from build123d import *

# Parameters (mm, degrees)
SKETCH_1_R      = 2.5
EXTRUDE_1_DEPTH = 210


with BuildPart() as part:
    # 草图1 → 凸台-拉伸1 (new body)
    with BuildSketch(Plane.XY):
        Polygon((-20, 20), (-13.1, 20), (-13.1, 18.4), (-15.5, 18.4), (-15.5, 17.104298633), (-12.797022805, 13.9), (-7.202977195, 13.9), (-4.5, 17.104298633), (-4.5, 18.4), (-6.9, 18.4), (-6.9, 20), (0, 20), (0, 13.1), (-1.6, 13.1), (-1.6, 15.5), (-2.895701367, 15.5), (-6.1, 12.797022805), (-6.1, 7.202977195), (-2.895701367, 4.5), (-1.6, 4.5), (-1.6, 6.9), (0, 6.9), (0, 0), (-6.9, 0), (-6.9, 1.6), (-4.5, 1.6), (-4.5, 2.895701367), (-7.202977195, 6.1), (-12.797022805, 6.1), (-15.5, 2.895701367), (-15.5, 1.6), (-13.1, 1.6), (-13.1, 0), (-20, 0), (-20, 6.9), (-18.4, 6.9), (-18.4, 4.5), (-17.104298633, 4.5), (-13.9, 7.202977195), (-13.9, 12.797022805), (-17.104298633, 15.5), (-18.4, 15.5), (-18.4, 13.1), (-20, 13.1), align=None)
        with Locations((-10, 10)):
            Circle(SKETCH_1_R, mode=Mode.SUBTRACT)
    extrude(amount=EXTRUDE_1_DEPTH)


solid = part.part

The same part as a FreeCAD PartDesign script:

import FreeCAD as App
import Part
import Sketcher
from FreeCAD import Vector
Q = App.Units.Quantity

doc = App.newDocument("Part")
body = doc.addObject("PartDesign::Body", "Body")

# Sketch on XY plane
sketch1 = body.newObject("Sketcher::SketchObject", "Sketch")
sketch1.AttachmentSupport = (doc.getObject("XY_Plane"), [""])
sketch1.MapMode = "FlatFace"
sketch1.addGeometry(Part.LineSegment(Vector(-13.1, 20, 0), Vector(-20, 20, 0)), False)
sketch1.addGeometry(Part.LineSegment(Vector(-20, 20, 0), Vector(-20, 13.1, 0)), False)
sketch1.addGeometry(Part.LineSegment(Vector(-20, 13.1, 0), Vector(-18.4, 13.1, 0)), False)
sketch1.addGeometry(Part.LineSegment(Vector(-18.4, 13.1, 0), Vector(-18.4, 15.5, 0)), False)
sketch1.addGeometry(Part.LineSegment(Vector(-18.4, 15.5, 0), Vector(-17.1, 15.5, 0)), False)
sketch1.addGeometry(Part.LineSegment(Vector(-17.1, 15.5, 0), Vector(-13.9, 12.8, 0)), False)
sketch1.addGeometry(Part.LineSegment(Vector(-13.9, 12.8, 0), Vector(-13.9, 7.2, 0)), False)
sketch1.addGeometry(Part.LineSegment(Vector(-13.9, 7.2, 0), Vector(-17.1, 4.5, 0)), False)
sketch1.addGeometry(Part.LineSegment(Vector(-17.1, 4.5, 0), Vector(-18.4, 4.5, 0)), False)
sketch1.addGeometry(Part.LineSegment(Vector(-18.4, 4.5, 0), Vector(-18.4, 6.9, 0)), False)
sketch1.addGeometry(Part.LineSegment(Vector(-18.4, 6.9, 0), Vector(-20, 6.9, 0)), False)
sketch1.addGeometry(Part.LineSegment(Vector(-20, 6.9, 0), Vector(-20, 0, 0)), False)
sketch1.addGeometry(Part.LineSegment(Vector(-20, 0, 0), Vector(-13.1, 0, 0)), False)
sketch1.addGeometry(Part.LineSegment(Vector(-13.1, 0, 0), Vector(-13.1, 1.6, 0)), False)
sketch1.addGeometry(Part.LineSegment(Vector(-13.1, 1.6, 0), Vector(-15.5, 1.6, 0)), False)
sketch1.addGeometry(Part.LineSegment(Vector(-15.5, 1.6, 0), Vector(-15.5, 2.9, 0)), False)
sketch1.addGeometry(Part.LineSegment(Vector(-15.5, 2.9, 0), Vector(-12.8, 6.1, 0)), False)
sketch1.addGeometry(Part.LineSegment(Vector(-12.8, 6.1, 0), Vector(-7.2, 6.1, 0)), False)
sketch1.addGeometry(Part.LineSegment(Vector(-7.2, 6.1, 0), Vector(-4.5, 2.9, 0)), False)
sketch1.addGeometry(Part.LineSegment(Vector(-4.5, 2.9, 0), Vector(-4.5, 1.6, 0)), False)
sketch1.addGeometry(Part.LineSegment(Vector(-4.5, 1.6, 0), Vector(-6.9, 1.6, 0)), False)
sketch1.addGeometry(Part.LineSegment(Vector(-6.9, 1.6, 0), Vector(-6.9, 0, 0)), False)
sketch1.addGeometry(Part.LineSegment(Vector(-6.9, 0, 0), Vector(0, 0, 0)), False)
sketch1.addGeometry(Part.LineSegment(Vector(0, 0, 0), Vector(0, 6.9, 0)), False)
sketch1.addGeometry(Part.LineSegment(Vector(0, 6.9, 0), Vector(-1.6, 6.9, 0)), False)
sketch1.addGeometry(Part.LineSegment(Vector(-1.6, 6.9, 0), Vector(-1.6, 4.5, 0)), False)
sketch1.addGeometry(Part.LineSegment(Vector(-1.6, 4.5, 0), Vector(-2.9, 4.5, 0)), False)
sketch1.addGeometry(Part.LineSegment(Vector(-2.9, 4.5, 0), Vector(-6.1, 7.2, 0)), False)
sketch1.addGeometry(Part.LineSegment(Vector(-6.1, 7.2, 0), Vector(-6.1, 12.8, 0)), False)
sketch1.addGeometry(Part.LineSegment(Vector(-6.1, 12.8, 0), Vector(-2.9, 15.5, 0)), False)
sketch1.addGeometry(Part.LineSegment(Vector(-2.9, 15.5, 0), Vector(-1.6, 15.5, 0)), False)
sketch1.addGeometry(Part.LineSegment(Vector(-1.6, 15.5, 0), Vector(-1.6, 13.1, 0)), False)
sketch1.addGeometry(Part.LineSegment(Vector(-1.6, 13.1, 0), Vector(0, 13.1, 0)), False)
sketch1.addGeometry(Part.LineSegment(Vector(0, 13.1, 0), Vector(0, 20, 0)), False)
sketch1.addGeometry(Part.LineSegment(Vector(0, 20, 0), Vector(-6.9, 20, 0)), False)
sketch1.addGeometry(Part.LineSegment(Vector(-6.9, 20, 0), Vector(-6.9, 18.4, 0)), False)
sketch1.addGeometry(Part.LineSegment(Vector(-6.9, 18.4, 0), Vector(-4.5, 18.4, 0)), False)
sketch1.addGeometry(Part.LineSegment(Vector(-4.5, 18.4, 0), Vector(-4.5, 17.1, 0)), False)
sketch1.addGeometry(Part.LineSegment(Vector(-4.5, 17.1, 0), Vector(-7.2, 13.9, 0)), False)
sketch1.addGeometry(Part.LineSegment(Vector(-7.2, 13.9, 0), Vector(-12.8, 13.9, 0)), False)
sketch1.addGeometry(Part.LineSegment(Vector(-12.8, 13.9, 0), Vector(-15.5, 17.1, 0)), False)
sketch1.addGeometry(Part.LineSegment(Vector(-15.5, 17.1, 0), Vector(-15.5, 18.4, 0)), False)
sketch1.addGeometry(Part.LineSegment(Vector(-15.5, 18.4, 0), Vector(-13.1, 18.4, 0)), False)
sketch1.addGeometry(Part.LineSegment(Vector(-13.1, 18.4, 0), Vector(-13.1, 20, 0)), False)
sketch1.addGeometry(Part.Circle(Vector(-10, 10, 0), Vector(0, 0, 1), 2.5), False)
sketch1.addConstraint(Sketcher.Constraint("Coincident", 0, 2, 1, 1))
sketch1.addConstraint(Sketcher.Constraint("Coincident", 1, 2, 2, 1))
sketch1.addConstraint(Sketcher.Constraint("Coincident", 2, 2, 3, 1))
sketch1.addConstraint(Sketcher.Constraint("Coincident", 3, 2, 4, 1))
sketch1.addConstraint(Sketcher.Constraint("Coincident", 4, 2, 5, 1))
sketch1.addConstraint(Sketcher.Constraint("Coincident", 5, 2, 6, 1))
sketch1.addConstraint(Sketcher.Constraint("Coincident", 6, 2, 7, 1))
sketch1.addConstraint(Sketcher.Constraint("Coincident", 7, 2, 8, 1))
sketch1.addConstraint(Sketcher.Constraint("Coincident", 8, 2, 9, 1))
sketch1.addConstraint(Sketcher.Constraint("Coincident", 9, 2, 10, 1))
sketch1.addConstraint(Sketcher.Constraint("Coincident", 10, 2, 11, 1))
sketch1.addConstraint(Sketcher.Constraint("Coincident", 11, 2, 12, 1))
sketch1.addConstraint(Sketcher.Constraint("Coincident", 12, 2, 13, 1))
sketch1.addConstraint(Sketcher.Constraint("Coincident", 13, 2, 14, 1))
sketch1.addConstraint(Sketcher.Constraint("Coincident", 14, 2, 15, 1))
sketch1.addConstraint(Sketcher.Constraint("Coincident", 15, 2, 16, 1))
sketch1.addConstraint(Sketcher.Constraint("Coincident", 16, 2, 17, 1))
sketch1.addConstraint(Sketcher.Constraint("Coincident", 17, 2, 18, 1))
sketch1.addConstraint(Sketcher.Constraint("Coincident", 18, 2, 19, 1))
sketch1.addConstraint(Sketcher.Constraint("Coincident", 19, 2, 20, 1))
sketch1.addConstraint(Sketcher.Constraint("Coincident", 20, 2, 21, 1))
sketch1.addConstraint(Sketcher.Constraint("Coincident", 21, 2, 22, 1))
sketch1.addConstraint(Sketcher.Constraint("Coincident", 22, 2, 23, 1))
sketch1.addConstraint(Sketcher.Constraint("Coincident", 23, 2, 24, 1))
sketch1.addConstraint(Sketcher.Constraint("Coincident", 24, 2, 25, 1))
sketch1.addConstraint(Sketcher.Constraint("Coincident", 25, 2, 26, 1))
sketch1.addConstraint(Sketcher.Constraint("Coincident", 26, 2, 27, 1))
sketch1.addConstraint(Sketcher.Constraint("Coincident", 27, 2, 28, 1))
sketch1.addConstraint(Sketcher.Constraint("Coincident", 28, 2, 29, 1))
sketch1.addConstraint(Sketcher.Constraint("Coincident", 29, 2, 30, 1))
sketch1.addConstraint(Sketcher.Constraint("Coincident", 30, 2, 31, 1))
sketch1.addConstraint(Sketcher.Constraint("Coincident", 31, 2, 32, 1))
sketch1.addConstraint(Sketcher.Constraint("Coincident", 32, 2, 33, 1))
sketch1.addConstraint(Sketcher.Constraint("Coincident", 33, 2, 34, 1))
sketch1.addConstraint(Sketcher.Constraint("Coincident", 34, 2, 35, 1))
sketch1.addConstraint(Sketcher.Constraint("Coincident", 35, 2, 36, 1))
sketch1.addConstraint(Sketcher.Constraint("Coincident", 36, 2, 37, 1))
sketch1.addConstraint(Sketcher.Constraint("Coincident", 37, 2, 38, 1))
sketch1.addConstraint(Sketcher.Constraint("Coincident", 38, 2, 39, 1))
sketch1.addConstraint(Sketcher.Constraint("Coincident", 39, 2, 40, 1))
sketch1.addConstraint(Sketcher.Constraint("Coincident", 40, 2, 41, 1))
sketch1.addConstraint(Sketcher.Constraint("Coincident", 41, 2, 42, 1))
sketch1.addConstraint(Sketcher.Constraint("Coincident", 42, 2, 43, 1))
sketch1.addConstraint(Sketcher.Constraint("Coincident", 43, 2, 0, 1))
sketch1.addConstraint(Sketcher.Constraint("Horizontal", 0))
sketch1.addConstraint(Sketcher.Constraint("Vertical", 1))
sketch1.addConstraint(Sketcher.Constraint("Horizontal", 2))
sketch1.addConstraint(Sketcher.Constraint("Vertical", 3))
sketch1.addConstraint(Sketcher.Constraint("Horizontal", 4))
sketch1.addConstraint(Sketcher.Constraint("Vertical", 6))
sketch1.addConstraint(Sketcher.Constraint("Horizontal", 8))
sketch1.addConstraint(Sketcher.Constraint("Vertical", 9))
sketch1.addConstraint(Sketcher.Constraint("Horizontal", 10))
sketch1.addConstraint(Sketcher.Constraint("Vertical", 11))
sketch1.addConstraint(Sketcher.Constraint("Horizontal", 12))
sketch1.addConstraint(Sketcher.Constraint("Vertical", 13))
sketch1.addConstraint(Sketcher.Constraint("Horizontal", 14))
sketch1.addConstraint(Sketcher.Constraint("Vertical", 15))
sketch1.addConstraint(Sketcher.Constraint("Horizontal", 17))
sketch1.addConstraint(Sketcher.Constraint("Vertical", 19))
sketch1.addConstraint(Sketcher.Constraint("Horizontal", 20))
sketch1.addConstraint(Sketcher.Constraint("Vertical", 21))
sketch1.addConstraint(Sketcher.Constraint("Horizontal", 22))
sketch1.addConstraint(Sketcher.Constraint("Vertical", 23))
sketch1.addConstraint(Sketcher.Constraint("Horizontal", 24))
sketch1.addConstraint(Sketcher.Constraint("Vertical", 25))
sketch1.addConstraint(Sketcher.Constraint("Horizontal", 26))
sketch1.addConstraint(Sketcher.Constraint("Vertical", 28))
sketch1.addConstraint(Sketcher.Constraint("Horizontal", 30))
sketch1.addConstraint(Sketcher.Constraint("Vertical", 31))
sketch1.addConstraint(Sketcher.Constraint("Horizontal", 32))
sketch1.addConstraint(Sketcher.Constraint("Vertical", 33))
sketch1.addConstraint(Sketcher.Constraint("Horizontal", 34))
sketch1.addConstraint(Sketcher.Constraint("Vertical", 35))
sketch1.addConstraint(Sketcher.Constraint("Horizontal", 36))
sketch1.addConstraint(Sketcher.Constraint("Vertical", 37))
sketch1.addConstraint(Sketcher.Constraint("Horizontal", 39))
sketch1.addConstraint(Sketcher.Constraint("Vertical", 41))
sketch1.addConstraint(Sketcher.Constraint("Horizontal", 42))
sketch1.addConstraint(Sketcher.Constraint("Vertical", 43))
sketch1.addConstraint(Sketcher.Constraint("Coincident", 22, 2, -1, 1))
sketch1.addConstraint(Sketcher.Constraint("PointOnObject", 11, 2, -1))
sketch1.addConstraint(Sketcher.Constraint("PointOnObject", 32, 2, -2))
sketch1.addConstraint(Sketcher.Constraint("Perpendicular", 5, 16))
sketch1.addConstraint(Sketcher.Constraint("Perpendicular", 7, 18))
sketch1.addConstraint(Sketcher.Constraint("Perpendicular", 16, 27))
sketch1.addConstraint(Sketcher.Constraint("Perpendicular", 18, 29))
sketch1.addConstraint(Sketcher.Constraint("Perpendicular", 27, 38))
sketch1.addConstraint(Sketcher.Constraint("Perpendicular", 29, 40))
sketch1.addConstraint(Sketcher.Constraint("Horizontal", 15, 2, 18, 2))
sketch1.addConstraint(Sketcher.Constraint("Horizontal", 14, 2, 19, 2))
sketch1.addConstraint(Sketcher.Constraint("Horizontal", 10, 2, 23, 2))
sketch1.addConstraint(Sketcher.Constraint("Horizontal", 8, 2, 25, 2))
sketch1.addConstraint(Sketcher.Constraint("Horizontal", 6, 2, 27, 2))
sketch1.addConstraint(Sketcher.Constraint("Horizontal", 5, 2, 28, 2))
sketch1.addConstraint(Sketcher.Constraint("Horizontal", 4, 2, 29, 2))
sketch1.addConstraint(Sketcher.Constraint("Horizontal", 2, 2, 31, 2))
sketch1.addConstraint(Sketcher.Constraint("Horizontal", 0, 2, 33, 2))
sketch1.addConstraint(Sketcher.Constraint("Horizontal", 37, 2, 40, 2))
sketch1.addConstraint(Sketcher.Constraint("Horizontal", 36, 2, 41, 2))
sketch1.addConstraint(Sketcher.Constraint("Vertical", 4, 2, 7, 2))
sketch1.addConstraint(Sketcher.Constraint("Vertical", 3, 2, 8, 2))
sketch1.addConstraint(Sketcher.Constraint("Vertical", 1, 2, 10, 2))
sketch1.addConstraint(Sketcher.Constraint("Vertical", 26, 2, 29, 2))
sketch1.addConstraint(Sketcher.Constraint("Vertical", 25, 2, 30, 2))
sketch1.addConstraint(Sketcher.Constraint("Vertical", 21, 2, 34, 2))
sketch1.addConstraint(Sketcher.Constraint("Vertical", 19, 2, 36, 2))
sketch1.addConstraint(Sketcher.Constraint("Vertical", 17, 2, 38, 2))
sketch1.addConstraint(Sketcher.Constraint("Vertical", 16, 2, 39, 2))
sketch1.addConstraint(Sketcher.Constraint("Vertical", 13, 2, 42, 2))
sketch1.addConstraint(Sketcher.Constraint("Equal", 14, 20))
sketch1.addConstraint(Sketcher.Constraint("Equal", 12, 22))
sketch1.addConstraint(Sketcher.Constraint("Equal", 10, 24))
sketch1.addConstraint(Sketcher.Constraint("Equal", 8, 26))
sketch1.addConstraint(Sketcher.Constraint("Equal", 34, 1))
sketch1.addConstraint(Sketcher.Constraint("Equal", 42, 3))
sketch1.addConstraint(Sketcher.Constraint("Equal", 39, 6))
sketch1.addConstraint(Sketcher.Constraint("Equal", 3, 9))
sketch1.addConstraint(Sketcher.Constraint("Equal", 1, 11))
sketch1.addConstraint(Sketcher.Constraint("Equal", 32, 13))
sketch1.addConstraint(Sketcher.Constraint("Equal", 30, 15))
sketch1.addConstraint(Sketcher.Constraint("Equal", 21, 35))
sketch1.addConstraint(Sketcher.Constraint("Equal", 19, 37))
sketch1.addConstraint(Sketcher.Constraint("Equal", 7, 16))
sketch1.addConstraint(Sketcher.Constraint("Diameter", 44, Q("5 mm")))
sketch1.addConstraint(Sketcher.Constraint("DistanceX", 0, 2, 0, 1, Q("6.9 mm")))
sketch1.addConstraint(Sketcher.Constraint("DistanceX", 2, 1, 2, 2, Q("1.6 mm")))
sketch1.addConstraint(Sketcher.Constraint("DistanceX", 14, 2, 14, 1, Q("2.4 mm")))
sketch1.addConstraint(Sketcher.Constraint("DistanceX", 44, 3, -1, 1, Q("10 mm")))
sketch1.addConstraint(Sketcher.Constraint("DistanceY", -1, 1, 44, 3, Q("10 mm")))
sketch1.addConstraint(Sketcher.Constraint("DistanceX", 0, 2, -1, 1, Q("20 mm")))
sketch1.addConstraint(Sketcher.Constraint("DistanceX", 5, 2, -1, 1, Q("13.9 mm")))
sketch1.addConstraint(Sketcher.Constraint("DistanceX", 4, 1, 4, 2, Q("1.295701 mm")))
sketch1.addConstraint(Sketcher.Constraint("Distance", 5, Q("4.19209 mm")))
pad1 = body.newObject("PartDesign::Pad", "Pad")
pad1.Profile = sketch1
pad1.Length = 210

doc.recompute()
